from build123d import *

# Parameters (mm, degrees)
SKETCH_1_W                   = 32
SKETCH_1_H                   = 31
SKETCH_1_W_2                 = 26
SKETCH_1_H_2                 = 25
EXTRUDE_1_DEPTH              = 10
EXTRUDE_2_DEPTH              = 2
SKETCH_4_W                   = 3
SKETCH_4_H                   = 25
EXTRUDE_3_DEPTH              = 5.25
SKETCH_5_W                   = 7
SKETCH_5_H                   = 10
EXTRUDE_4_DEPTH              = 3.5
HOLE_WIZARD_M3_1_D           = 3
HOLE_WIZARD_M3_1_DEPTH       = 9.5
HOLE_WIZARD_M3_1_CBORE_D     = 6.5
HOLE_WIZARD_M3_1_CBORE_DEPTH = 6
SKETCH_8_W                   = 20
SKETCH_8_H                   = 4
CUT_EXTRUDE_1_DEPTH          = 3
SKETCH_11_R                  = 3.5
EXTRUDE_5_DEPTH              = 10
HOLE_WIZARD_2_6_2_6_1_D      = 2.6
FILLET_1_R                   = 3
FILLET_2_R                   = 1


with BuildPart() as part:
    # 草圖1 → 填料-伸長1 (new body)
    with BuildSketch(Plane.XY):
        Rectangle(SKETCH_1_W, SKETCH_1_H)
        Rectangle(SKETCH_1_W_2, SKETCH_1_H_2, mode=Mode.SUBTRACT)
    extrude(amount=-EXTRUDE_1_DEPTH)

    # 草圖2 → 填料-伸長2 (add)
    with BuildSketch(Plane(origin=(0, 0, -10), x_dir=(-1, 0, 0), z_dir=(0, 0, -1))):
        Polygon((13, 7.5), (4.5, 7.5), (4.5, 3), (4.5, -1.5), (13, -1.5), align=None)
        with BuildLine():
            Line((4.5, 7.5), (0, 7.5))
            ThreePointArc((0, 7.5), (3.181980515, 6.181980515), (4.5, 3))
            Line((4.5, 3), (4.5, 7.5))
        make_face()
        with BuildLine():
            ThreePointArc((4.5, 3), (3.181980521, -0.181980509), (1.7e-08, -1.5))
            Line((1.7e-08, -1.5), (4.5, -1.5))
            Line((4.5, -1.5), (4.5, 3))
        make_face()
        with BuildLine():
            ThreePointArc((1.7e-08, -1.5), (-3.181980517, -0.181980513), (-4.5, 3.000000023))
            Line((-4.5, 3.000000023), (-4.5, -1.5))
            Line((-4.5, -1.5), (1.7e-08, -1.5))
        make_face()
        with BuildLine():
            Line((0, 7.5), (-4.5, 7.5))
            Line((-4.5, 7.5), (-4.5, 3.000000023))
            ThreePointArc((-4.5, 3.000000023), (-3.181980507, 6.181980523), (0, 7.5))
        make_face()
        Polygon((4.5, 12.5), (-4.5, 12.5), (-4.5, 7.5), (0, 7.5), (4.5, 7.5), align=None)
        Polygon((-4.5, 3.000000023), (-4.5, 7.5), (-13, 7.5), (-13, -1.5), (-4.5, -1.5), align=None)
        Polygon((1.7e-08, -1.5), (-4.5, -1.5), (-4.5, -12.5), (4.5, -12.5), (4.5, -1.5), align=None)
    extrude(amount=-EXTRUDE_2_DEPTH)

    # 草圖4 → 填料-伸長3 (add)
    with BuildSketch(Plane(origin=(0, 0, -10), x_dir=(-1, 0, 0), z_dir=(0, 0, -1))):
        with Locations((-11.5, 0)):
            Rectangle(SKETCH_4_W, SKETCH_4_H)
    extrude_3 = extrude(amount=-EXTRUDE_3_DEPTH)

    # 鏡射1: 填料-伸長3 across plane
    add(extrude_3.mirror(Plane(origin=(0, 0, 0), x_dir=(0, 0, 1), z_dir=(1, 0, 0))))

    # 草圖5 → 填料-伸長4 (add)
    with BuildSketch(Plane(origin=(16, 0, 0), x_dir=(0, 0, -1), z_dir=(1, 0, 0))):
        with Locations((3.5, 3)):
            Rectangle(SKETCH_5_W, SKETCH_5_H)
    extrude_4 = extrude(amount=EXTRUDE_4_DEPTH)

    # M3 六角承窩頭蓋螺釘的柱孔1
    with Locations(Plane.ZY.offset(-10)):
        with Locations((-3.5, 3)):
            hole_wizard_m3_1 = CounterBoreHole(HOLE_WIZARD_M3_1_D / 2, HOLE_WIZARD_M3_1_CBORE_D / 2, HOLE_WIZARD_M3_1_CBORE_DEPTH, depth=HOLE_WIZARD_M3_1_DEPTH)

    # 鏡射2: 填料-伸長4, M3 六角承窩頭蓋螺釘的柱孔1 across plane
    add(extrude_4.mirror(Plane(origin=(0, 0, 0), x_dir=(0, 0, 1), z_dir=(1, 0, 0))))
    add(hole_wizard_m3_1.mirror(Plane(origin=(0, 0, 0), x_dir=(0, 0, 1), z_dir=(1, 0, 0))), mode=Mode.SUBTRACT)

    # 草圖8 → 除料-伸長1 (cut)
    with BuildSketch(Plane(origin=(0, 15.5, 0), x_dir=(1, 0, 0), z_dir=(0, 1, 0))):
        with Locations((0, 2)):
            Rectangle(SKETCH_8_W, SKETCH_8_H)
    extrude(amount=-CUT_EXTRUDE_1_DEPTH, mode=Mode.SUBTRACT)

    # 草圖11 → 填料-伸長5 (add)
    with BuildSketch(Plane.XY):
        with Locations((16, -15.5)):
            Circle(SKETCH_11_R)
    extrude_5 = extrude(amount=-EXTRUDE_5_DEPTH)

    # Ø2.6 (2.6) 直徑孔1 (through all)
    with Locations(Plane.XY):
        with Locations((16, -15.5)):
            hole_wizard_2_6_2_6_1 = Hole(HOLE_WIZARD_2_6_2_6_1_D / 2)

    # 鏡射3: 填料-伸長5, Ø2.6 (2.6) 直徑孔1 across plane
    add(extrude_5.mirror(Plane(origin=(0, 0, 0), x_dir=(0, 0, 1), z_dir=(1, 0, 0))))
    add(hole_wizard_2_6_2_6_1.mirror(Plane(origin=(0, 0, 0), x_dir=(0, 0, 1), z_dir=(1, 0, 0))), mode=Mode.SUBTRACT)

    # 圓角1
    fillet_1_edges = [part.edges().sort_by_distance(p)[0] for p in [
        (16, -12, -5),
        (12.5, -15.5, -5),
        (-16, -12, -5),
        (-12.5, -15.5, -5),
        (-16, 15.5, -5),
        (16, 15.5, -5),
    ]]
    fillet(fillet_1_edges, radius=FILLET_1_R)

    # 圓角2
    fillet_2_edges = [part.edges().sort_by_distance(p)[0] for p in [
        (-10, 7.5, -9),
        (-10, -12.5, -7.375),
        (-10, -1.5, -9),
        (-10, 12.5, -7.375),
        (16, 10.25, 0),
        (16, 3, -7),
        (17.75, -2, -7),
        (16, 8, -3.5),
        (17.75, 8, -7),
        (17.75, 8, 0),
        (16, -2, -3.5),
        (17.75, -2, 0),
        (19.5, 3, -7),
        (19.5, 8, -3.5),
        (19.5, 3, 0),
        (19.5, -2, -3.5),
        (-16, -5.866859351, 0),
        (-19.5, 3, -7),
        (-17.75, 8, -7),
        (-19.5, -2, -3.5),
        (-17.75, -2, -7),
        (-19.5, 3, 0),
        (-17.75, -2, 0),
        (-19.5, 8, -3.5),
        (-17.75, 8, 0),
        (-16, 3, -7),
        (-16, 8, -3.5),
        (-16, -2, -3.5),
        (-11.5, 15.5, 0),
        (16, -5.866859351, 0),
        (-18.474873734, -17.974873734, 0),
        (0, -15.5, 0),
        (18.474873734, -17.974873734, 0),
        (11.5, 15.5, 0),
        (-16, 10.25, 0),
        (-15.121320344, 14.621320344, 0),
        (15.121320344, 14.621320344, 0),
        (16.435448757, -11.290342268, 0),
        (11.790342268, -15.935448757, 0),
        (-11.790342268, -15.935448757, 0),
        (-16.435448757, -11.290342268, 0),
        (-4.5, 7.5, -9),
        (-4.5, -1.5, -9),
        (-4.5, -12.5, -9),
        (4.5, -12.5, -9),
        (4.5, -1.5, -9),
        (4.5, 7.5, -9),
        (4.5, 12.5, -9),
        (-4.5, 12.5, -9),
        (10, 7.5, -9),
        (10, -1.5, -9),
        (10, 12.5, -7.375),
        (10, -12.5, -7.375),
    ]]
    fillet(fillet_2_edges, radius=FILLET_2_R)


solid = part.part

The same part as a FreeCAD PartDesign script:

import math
import FreeCAD as App
import Part
import Sketcher

V = App.Vector
Q = App.Units.Quantity


def edges_at(feature, points):
    """Names of the edges that pass closest to the given points."""
    edges = feature.Shape.Edges
    near = lambda p: min(range(len(edges)), key=lambda i: edges[i].distToShape(Part.Vertex(*p))[0])
    return sorted({f"Edge{near(p) + 1}" for p in points})


def add_polygon(sketch, points):
    """Adds a closed chain of lines whose ends are joined by coincident constraints."""
    first, n = sketch.GeometryCount, len(points)
    for a, b in zip(points, points[1:] + points[:1]):
        sketch.addGeometry(Part.LineSegment(App.Vector(*a, 0), App.Vector(*b, 0)), False)
    for i in range(n):
        sketch.addConstraint(Sketcher.Constraint("Coincident", first + i, 2, first + (i + 1) % n, 1))

doc = App.newDocument("Part")
body = doc.addObject("PartDesign::Body", "Body")

# Sketch on XY plane
sketch1 = doc.addObject("Sketcher::SketchObject", "Sketch")
body.addObject(sketch1)
sketch1.AttachmentSupport = (doc.XY_Plane, [""])
sketch1.MapMode = "FlatFace"
add_polygon(sketch1, [(-16, 16), (-16, -16), (16, -16), (16, 16)])  # lines 0-3
add_polygon(sketch1, [(13, -12), (-13, -12), (-13, 12), (13, 12)])  # lines 4-7
sketch1.addConstraint(Sketcher.Constraint("Vertical", 0))
sketch1.addConstraint(Sketcher.Constraint("Horizontal", 1))
sketch1.addConstraint(Sketcher.Constraint("Vertical", 2))
sketch1.addConstraint(Sketcher.Constraint("Horizontal", 3))
sketch1.addConstraint(Sketcher.Constraint("Horizontal", 4))
sketch1.addConstraint(Sketcher.Constraint("Vertical", 5))
sketch1.addConstraint(Sketcher.Constraint("Horizontal", 6))
sketch1.addConstraint(Sketcher.Constraint("Vertical", 7))
sketch1.addConstraint(Sketcher.Constraint("Symmetric", 0, 2, 2, 2, -1, 1))
sketch1.addConstraint(Sketcher.Constraint("Symmetric", 4, 2, 6, 2, -1, 1))
sketch1.addConstraint(Sketcher.Constraint("DistanceX", 1, 1, 1, 2, Q("32 mm")))
sketch1.addConstraint(Sketcher.Constraint("DistanceX", 4, 2, 4, 1, Q("26 mm")))
sketch1.addConstraint(Sketcher.Constraint("DistanceY", 0, 2, 0, 1, Q("31 mm")))
sketch1.addConstraint(Sketcher.Constraint("DistanceY", 5, 1, 5, 2, Q("25 mm")))
pad1 = doc.addObject("PartDesign::Pad", "Pad")
body.addObject(pad1)
pad1.Profile = sketch1
pad1.Length = 10
pad1.Reversed = True

# Sketch on XY plane
sketch2 = doc.addObject("Sketcher::SketchObject", "Sketch001")
body.addObject(sketch2)
sketch2.AttachmentSupport = (doc.XY_Plane, [""])
sketch2.MapMode = "FlatFace"
sketch2.AttachmentOffset = App.Placement(V(0, 0, -10), App.Rotation())
add_polygon(sketch2, [(13, -1.5), (4.5, -1.5), (4.5, -12.5), (-4.5, -12.5), (-4.5, -1.5), (-13, -1.5), (-13, 7.5), (-4.5, 7.5), (-4.5, 12.5), (4.5, 12.5), (4.5, 7.5), (13, 7.5)])  # lines 0-11
sketch2.addGeometry(Part.ArcOfCircle(Part.Circle(V(0, 3, 0), V(0, 0, 1), 4.5), math.radians(-180), math.radians(-90)), False)  # 12
sketch2.addGeometry(Part.ArcOfCircle(Part.Circle(V(0, 3, 0), V(0, 0, 1), 4.5), math.radians(-90), math.radians(0)), False)  # 13
sketch2.addGeometry(Part.ArcOfCircle(Part.Circle(V(0, 3, 0), V(0, 0, 1), 4.5), math.radians(0), math.radians(90)), False)  # 14
sketch2.addGeometry(Part.ArcOfCircle(Part.Circle(V(0, 3, 0), V(0, 0, 1), 4.5), math.radians(90), math.radians(180)), False)  # 15
sketch2.addConstraint(Sketcher.Constraint("Tangent", 12, 2, 13, 1))
sketch2.addConstraint(Sketcher.Constraint("Tangent", 13, 2, 14, 1))
sketch2.addConstraint(Sketcher.Constraint("Tangent", 14, 2, 15, 1))
sketch2.addConstraint(Sketcher.Constraint("Tangent", 15, 2, 12, 1))
sketch2.addConstraint(Sketcher.Constraint("Horizontal", 0))
sketch2.addConstraint(Sketcher.Constraint("Vertical", 1))
sketch2.addConstraint(Sketcher.Constraint("Horizontal", 2))
sketch2.addConstraint(Sketcher.Constraint("Vertical", 3))
sketch2.addConstraint(Sketcher.Constraint("Horizontal", 4))
sketch2.addConstraint(Sketcher.Constraint("Vertical", 5))
sketch2.addConstraint(Sketcher.Constraint("Horizontal", 6))
sketch2.addConstraint(Sketcher.Constraint("Vertical", 7))
sketch2.addConstraint(Sketcher.Constraint("Horizontal", 8))
sketch2.addConstraint(Sketcher.Constraint("Vertical", 9))
sketch2.addConstraint(Sketcher.Constraint("Horizontal", 10))
sketch2.addConstraint(Sketcher.Constraint("Vertical", 11))
sketch2.addConstraint(Sketcher.Constraint("Equal", 12, 13))
sketch2.addConstraint(Sketcher.Constraint("Symmetric", 1, 2, 7, 2, -1, 1))
sketch2.addConstraint(Sketcher.Constraint("Symmetric", 0, 2, 3, 2, -2))
sketch2.addConstraint(Sketcher.Constraint("Symmetric", 6, 2, 9, 2, -2))
sketch2.addConstraint(Sketcher.Constraint("Symmetric", 13, 2, 15, 2, -2))
sketch2.addConstraint(Sketcher.Constraint("PointOnObject", 12, 2, -2))
sketch2.addConstraint(Sketcher.Constraint("PointOnObject", 14, 2, -2))
sketch2.addConstraint(Sketcher.Constraint("Horizontal", 11, 2, 12, 2))
sketch2.addConstraint(Sketcher.Constraint("Horizontal", 15, 3, 13, 2))
sketch2.addConstraint(Sketcher.Constraint("Horizontal", 10, 2, 14, 2))
sketch2.addConstraint(Sketcher.Constraint("Vertical", 9, 2, 13, 2))
sketch2.addConstraint(Sketcher.Constraint("Equal", 0, 4))
sketch2.addConstraint(Sketcher.Constraint("Radius", 12, Q("4.5 mm")))
sketch2.addConstraint(Sketcher.Constraint("DistanceY", 1, 2, 1, 1, Q("11 mm")))
sketch2.addConstraint(Sketcher.Constraint("DistanceY", 7, 1, 7, 2, Q("5 mm")))
sketch2.addConstraint(Sketcher.Constraint("DistanceX", 0, 2, 0, 1, Q("8.5 mm")))
pad2 = doc.addObject("PartDesign::Pad", "Pad001")
body.addObject(pad2)
pad2.Profile = sketch2
pad2.Length = 2

# Sketch on XY plane
sketch3 = doc.addObject("Sketcher::SketchObject", "Sketch002")
body.addObject(sketch3)
sketch3.AttachmentSupport = (doc.XY_Plane, [""])
sketch3.MapMode = "FlatFace"
sketch3.AttachmentOffset = App.Placement(V(0, 0, -10), App.Rotation())
add_polygon(sketch3, [(13, 12.5), (13, -12.5), (10, -12.5), (10, 12.5)])  # lines 0-3
sketch3.addConstraint(Sketcher.Constraint("Vertical", 0))
sketch3.addConstraint(Sketcher.Constraint("Horizontal", 1))
sketch3.addConstraint(Sketcher.Constraint("Vertical", 2))
sketch3.addConstraint(Sketcher.Constraint("Horizontal", 3))
sketch3.addConstraint(Sketcher.Constraint("DistanceX", 1, 2, 1, 1, Q("3 mm")))
sketch3.addConstraint(Sketcher.Constraint("DistanceY", 0, 2, 0, 1, Q("25 mm")))
sketch3.addConstraint(Sketcher.Constraint("DistanceX", -1, 1, 0, 2, Q("13 mm")))
sketch3.addConstraint(Sketcher.Constraint("DistanceY", 0, 2, -1, 1, Q("12.5 mm")))
pad3 = doc.addObject("PartDesign::Pad", "Pad002")
body.addObject(pad3)
pad3.Profile = sketch3
pad3.Length = 5.25
doc.recompute()

mirrored = doc.addObject("PartDesign::Mirrored", "Mirrored")
body.addObject(mirrored)
mirrored.Originals = [pad3]
mirrored.MirrorPlane = (doc.YZ_Plane, [""])
body.Tip = mirrored

# Sketch on YZ plane
sketch4 = doc.addObject("Sketcher::SketchObject", "Sketch003")
body.addObject(sketch4)
sketch4.AttachmentSupport = (doc.YZ_Plane, [""])
sketch4.MapMode = "FlatFace"
sketch4.AttachmentOffset = App.Placement(V(0, 0, 16), App.Rotation())
add_polygon(sketch4, [(8, 0), (-2, 0), (-2, -7), (8, -7)])  # lines 0-3
sketch4.addConstraint(Sketcher.Constraint("Horizontal", 0))
sketch4.addConstraint(Sketcher.Constraint("Vertical", 1))
sketch4.addConstraint(Sketcher.Constraint("Horizontal", 2))
sketch4.addConstraint(Sketcher.Constraint("Vertical", 3))
sketch4.addConstraint(Sketcher.Constraint("PointOnObject", 0, 2, -1))
sketch4.addConstraint(Sketcher.Constraint("DistanceX", 0, 2, 0, 1, Q("10 mm")))
sketch4.addConstraint(Sketcher.Constraint("DistanceY", 1, 2, 1, 1, Q("7 mm")))
sketch4.addConstraint(Sketcher.Constraint("DistanceX", 0, 2, -1, 1, Q("2 mm")))
pad4 = doc.addObject("PartDesign::Pad", "Pad003")
body.addObject(pad4)
pad4.Profile = sketch4
pad4.Length = 3.5

# Sketch on YZ plane
sketch5 = doc.addObject("Sketcher::SketchObject", "Sketch004")
body.addObject(sketch5)
sketch5.AttachmentSupport = (doc.YZ_Plane, [""])
sketch5.MapMode = "FlatFace"
sketch5.AttachmentOffset = App.Placement(V(0, 0, 10), App.Rotation())
sketch5.addGeometry(Part.Circle(V(3, -3.5, 0), V(0, 0, 1), 1.5), False)
sketch5.addConstraint(Sketcher.Constraint("Diameter", 0, Q("3 mm")))
sketch5.addConstraint(Sketcher.Constraint("DistanceX", -1, 1, 0, 3, Q("3 mm")))
sketch5.addConstraint(Sketcher.Constraint("DistanceY", 0, 3, -1, 1, Q("3.5 mm")))
doc.recompute()
hole = doc.addObject("PartDesign::Hole", "Hole")
body.addObject(hole)
hole.Profile = sketch5
hole.ThreadType = "None"
hole.Diameter = 3
hole.DepthType = "Dimension"
hole.Depth = 9.5
hole.DrillPoint = "Flat"
hole.HoleCutType = "Counterbore"
hole.HoleCutDiameter = 6.5
hole.HoleCutDepth = 6
hole.Reversed = True
doc.recompute()

mirrored2 = doc.addObject("PartDesign::Mirrored", "Mirrored001")
body.addObject(mirrored2)
mirrored2.Originals = [pad4, hole]
mirrored2.MirrorPlane = (doc.YZ_Plane, [""])
body.Tip = mirrored2

# Sketch on XZ plane
sketch6 = doc.addObject("Sketcher::SketchObject", "Sketch005")
body.addObject(sketch6)
sketch6.AttachmentSupport = (doc.XZ_Plane, [""])
sketch6.MapMode = "FlatFace"
sketch6.AttachmentOffset = App.Placement(V(0, 0, -15.5), App.Rotation())
add_polygon(sketch6, [(-10, -4), (-10, 0), (10, 0), (10, -4)])  # lines 0-3
sketch6.addConstraint(Sketcher.Constraint("Vertical", 0))
sketch6.addConstraint(Sketcher.Constraint("Horizontal", 1))
sketch6.addConstraint(Sketcher.Constraint("Vertical", 2))
sketch6.addConstraint(Sketcher.Constraint("Horizontal", 3))
sketch6.addConstraint(Sketcher.Constraint("Symmetric", 0, 2, 1, 2, -1, 1))
sketch6.addConstraint(Sketcher.Constraint("DistanceX", 1, 1, 1, 2, Q("20 mm")))
sketch6.addConstraint(Sketcher.Constraint("DistanceY", 0, 1, 0, 2, Q("4 mm")))
pocket1 = doc.addObject("PartDesign::Pocket", "Pocket")
body.addObject(pocket1)
pocket1.Profile = sketch6
pocket1.Length = 3
pocket1.Reversed = True

# Sketch on XY plane
sketch7 = doc.addObject("Sketcher::SketchObject", "Sketch006")
body.addObject(sketch7)
sketch7.AttachmentSupport = (doc.XY_Plane, [""])
sketch7.MapMode = "FlatFace"
sketch7.addGeometry(Part.Circle(V(16, -15.5, 0), V(0, 0, 1), 3.5), False)
sketch7.addConstraint(Sketcher.Constraint("Diameter", 0, Q("7 mm")))
sketch7.addConstraint(Sketcher.Constraint("DistanceX", -1, 1, 0, 3, Q("16 mm")))
sketch7.addConstraint(Sketcher.Constraint("DistanceY", 0, 3, -1, 1, Q("15.5 mm")))
pad5 = doc.addObject("PartDesign::Pad", "Pad004")
body.addObject(pad5)
pad5.Profile = sketch7
pad5.Length = 10
pad5.Reversed = True

# Sketch on XY plane
sketch8 = doc.addObject("Sketcher::SketchObject", "Sketch007")
body.addObject(sketch8)
sketch8.AttachmentSupport = (doc.XY_Plane, [""])
sketch8.MapMode = "FlatFace"
sketch8.addGeometry(Part.Circle(V(16, -15.5, 0), V(0, 0, 1), 1.3), False)
sketch8.addConstraint(Sketcher.Constraint("Diameter", 0, Q("2.6 mm")))
sketch8.addConstraint(Sketcher.Constraint("DistanceX", -1, 1, 0, 3, Q("16 mm")))
sketch8.addConstraint(Sketcher.Constraint("DistanceY", 0, 3, -1, 1, Q("15.5 mm")))
doc.recompute()
hole2 = doc.addObject("PartDesign::Hole", "Hole001")
body.addObject(hole2)
hole2.Profile = sketch8
hole2.ThreadType = "None"
hole2.Diameter = 2.6
hole2.DepthType = "ThroughAll"
doc.recompute()

mirrored3 = doc.addObject("PartDesign::Mirrored", "Mirrored002")
body.addObject(mirrored3)
mirrored3.Originals = [pad5, hole2]
mirrored3.MirrorPlane = (doc.YZ_Plane, [""])
body.Tip = mirrored3
doc.recompute()

fillet = doc.addObject("PartDesign::Fillet", "Fillet")
body.addObject(fillet)
fillet.Base = (mirrored3, edges_at(mirrored3, [
    (16, -12, -5),
    (12.5, -15.5, -5),
    (-16, -12, -5),
    (-12.5, -15.5, -5),
    (-16, 15.5, -5),
    (16, 15.5, -5),
]))
fillet.Radius = 3
doc.recompute()

fillet2 = doc.addObject("PartDesign::Fillet", "Fillet001")
body.addObject(fillet2)
fillet2.Base = (fillet, edges_at(fillet, [
    (-10, 7.5, -9),
    (-10, -12.5, -7.375),
    (-10, -1.5, -9),
    (-10, 12.5, -7.375),
    (16, 10.25, 0),
    (16, 3, -7),
    (17.75, -2, -7),
    (16, 8, -3.5),
    (17.75, 8, -7),
    (17.75, 8, 0),
    (16, -2, -3.5),
    (17.75, -2, 0),
    (19.5, 3, -7),
    (19.5, 8, -3.5),
    (19.5, 3, 0),
    (19.5, -2, -3.5),
    (-16, -5.867, 0),
    (-19.5, 3, -7),
    (-17.75, 8, -7),
    (-19.5, -2, -3.5),
    (-17.75, -2, -7),
    (-19.5, 3, 0),
    (-17.75, -2, 0),
    (-19.5, 8, -3.5),
    (-17.75, 8, 0),
    (-16, 3, -7),
    (-16, 8, -3.5),
    (-16, -2, -3.5),
    (-11.5, 15.5, 0),
    (16, -5.867, 0),
    (-18.475, -17.975, 0),
    (0, -15.5, 0),
    (18.475, -17.975, 0),
    (11.5, 15.5, 0),
    (-16, 10.25, 0),
    (-15.121, 14.621, 0),
    (15.121, 14.621, 0),
    (16.435, -11.29, 0),
    (11.79, -15.935, 0),
    (-11.79, -15.935, 0),
    (-16.435, -11.29, 0),
    (-4.5, 7.5, -9),
    (-4.5, -1.5, -9),
    (-4.5, -12.5, -9),
    (4.5, -12.5, -9),
    (4.5, -1.5, -9),
    (4.5, 7.5, -9),
    (4.5, 12.5, -9),
    (-4.5, 12.5, -9),
    (10, 7.5, -9),
    (10, -1.5, -9),
    (10, 12.5, -7.375),
    (10, -12.5, -7.375),
]))
fillet2.Radius = 1

doc.recompute()
